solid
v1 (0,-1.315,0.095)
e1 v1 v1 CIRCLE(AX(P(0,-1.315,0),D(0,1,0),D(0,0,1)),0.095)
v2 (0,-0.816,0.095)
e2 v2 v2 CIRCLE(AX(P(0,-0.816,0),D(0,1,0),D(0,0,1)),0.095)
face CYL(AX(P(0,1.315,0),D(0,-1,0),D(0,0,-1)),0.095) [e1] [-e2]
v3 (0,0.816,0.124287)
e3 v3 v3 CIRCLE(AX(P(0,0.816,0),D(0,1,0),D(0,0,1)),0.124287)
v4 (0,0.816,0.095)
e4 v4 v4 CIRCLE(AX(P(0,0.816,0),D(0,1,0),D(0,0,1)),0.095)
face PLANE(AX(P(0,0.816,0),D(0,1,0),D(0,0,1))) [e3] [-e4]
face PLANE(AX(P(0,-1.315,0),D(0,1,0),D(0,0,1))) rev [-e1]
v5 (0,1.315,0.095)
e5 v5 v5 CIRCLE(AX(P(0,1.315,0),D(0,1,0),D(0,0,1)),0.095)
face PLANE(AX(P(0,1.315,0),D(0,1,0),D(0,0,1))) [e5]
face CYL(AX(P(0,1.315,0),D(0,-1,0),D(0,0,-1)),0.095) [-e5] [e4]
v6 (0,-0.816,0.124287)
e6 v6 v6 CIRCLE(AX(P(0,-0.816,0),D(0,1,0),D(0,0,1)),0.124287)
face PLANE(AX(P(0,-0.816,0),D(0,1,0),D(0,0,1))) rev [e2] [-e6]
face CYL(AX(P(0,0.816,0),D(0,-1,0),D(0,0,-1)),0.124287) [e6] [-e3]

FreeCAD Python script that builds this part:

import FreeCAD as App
import Part
import Sketcher
Q = App.Units.Quantity

doc = App.newDocument("Part")
body = doc.addObject("PartDesign::Body", "Body")

sketch1 = body.newObject("Sketcher::SketchObject", "Sketch")
sketch1.AttachmentSupport = (doc.getObject("XZ_Plane"), [""])
sketch1.MapMode = "FlatFace"
sketch1.addGeometry(Part.Circle(App.Vector(0, 0, 0), App.Vector(0, 0, 1), 0.1), False)
sketch1.addConstraint(Sketcher.Constraint("Coincident", 0, 3, -1, 1))
sketch1.addConstraint(Sketcher.Constraint("Diameter", 0, Q("0.19 mm")))
pad1 = body.newObject("PartDesign::Pad", "Pad")
pad1.Profile = sketch1
pad1.Length = 2.63
pad1.Midplane = True

sketch2 = body.newObject("Sketcher::SketchObject", "Sketch001")
sketch2.AttachmentSupport = (doc.getObject("XZ_Plane"), [""])
sketch2.MapMode = "FlatFace"
sketch2.addGeometry(Part.Circle(App.Vector(0, 0, 0), App.Vector(0, 0, 1), 0.12), False)
sketch2.addGeometry(Part.Circle(App.Vector(0, 0, 0), App.Vector(0, 0, 1), 0.1), False)
sketch2.addConstraint(Sketcher.Constraint("Coincident", 0, 3, -1, 1))
sketch2.addConstraint(Sketcher.Constraint("Coincident", 1, 3, -1, 1))
sketch2.addConstraint(Sketcher.Constraint("Diameter", 1, Q("0.19 mm")))
sketch2.addConstraint(Sketcher.Constraint("Diameter", 0, Q("0.248574 mm")))
pad2 = body.newObject("PartDesign::Pad", "Pad001")
pad2.Profile = sketch2
pad2.Length = 1.632
pad2.Midplane = True

doc.recompute()
